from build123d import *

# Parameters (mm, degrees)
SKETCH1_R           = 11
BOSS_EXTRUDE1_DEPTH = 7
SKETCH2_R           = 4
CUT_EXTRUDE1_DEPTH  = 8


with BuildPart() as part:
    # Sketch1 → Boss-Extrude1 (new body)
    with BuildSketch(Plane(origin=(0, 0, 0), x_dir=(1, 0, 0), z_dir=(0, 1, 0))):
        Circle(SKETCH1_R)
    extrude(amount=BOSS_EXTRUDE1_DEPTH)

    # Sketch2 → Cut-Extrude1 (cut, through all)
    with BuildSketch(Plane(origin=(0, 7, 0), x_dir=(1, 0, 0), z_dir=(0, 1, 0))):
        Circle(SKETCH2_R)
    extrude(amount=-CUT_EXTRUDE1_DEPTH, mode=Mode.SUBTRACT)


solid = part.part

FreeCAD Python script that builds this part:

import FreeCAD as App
import Part
import Sketcher
from FreeCAD import Vector
Q = App.Units.Quantity

doc = App.newDocument("Part")
body = doc.addObject("PartDesign::Body", "Body")

# Sketch on XZ plane
sketch1 = body.newObject("Sketcher::SketchObject", "Sketch")
sketch1.AttachmentSupport = (doc.getObject("XZ_Plane"), [""])
sketch1.MapMode = "FlatFace"
sketch1.addGeometry(Part.Circle(Vector(0, 0, 0), Vector(0, 0, 1), 11), False)
sketch1.addConstraint(Sketcher.Constraint("Coincident", 0, 3, -1, 1))
sketch1.addConstraint(Sketcher.Constraint("Diameter", 0, Q("22 mm")))
pad1 = body.newObject("PartDesign::Pad", "Pad")
pad1.Profile = sketch1
pad1.Length = 7
pad1.Reversed = True

# Sketch on XZ plane
sketch2 = body.newObject("Sketcher::SketchObject", "Sketch001")
sketch2.AttachmentSupport = (doc.getObject("XZ_Plane"), [""])
sketch2.MapMode = "FlatFace"
sketch2.AttachmentOffset = App.Placement(Vector(0, 0, -7), App.Rotation())
sketch2.addGeometry(Part.Circle(Vector(0, 0, 0), Vector(0, 0, 1), 4), False)
sketch2.addConstraint(Sketcher.Constraint("Coincident", 0, 3, -1, 1))
sketch2.addConstraint(Sketcher.Constraint("Diameter", 0, Q("8 mm")))
pocket1 = body.newObject("PartDesign::Pocket", "Pocket")
pocket1.Profile = sketch2
pocket1.Type = "ThroughAll"
pocket1.Reversed = True

doc.recompute()
